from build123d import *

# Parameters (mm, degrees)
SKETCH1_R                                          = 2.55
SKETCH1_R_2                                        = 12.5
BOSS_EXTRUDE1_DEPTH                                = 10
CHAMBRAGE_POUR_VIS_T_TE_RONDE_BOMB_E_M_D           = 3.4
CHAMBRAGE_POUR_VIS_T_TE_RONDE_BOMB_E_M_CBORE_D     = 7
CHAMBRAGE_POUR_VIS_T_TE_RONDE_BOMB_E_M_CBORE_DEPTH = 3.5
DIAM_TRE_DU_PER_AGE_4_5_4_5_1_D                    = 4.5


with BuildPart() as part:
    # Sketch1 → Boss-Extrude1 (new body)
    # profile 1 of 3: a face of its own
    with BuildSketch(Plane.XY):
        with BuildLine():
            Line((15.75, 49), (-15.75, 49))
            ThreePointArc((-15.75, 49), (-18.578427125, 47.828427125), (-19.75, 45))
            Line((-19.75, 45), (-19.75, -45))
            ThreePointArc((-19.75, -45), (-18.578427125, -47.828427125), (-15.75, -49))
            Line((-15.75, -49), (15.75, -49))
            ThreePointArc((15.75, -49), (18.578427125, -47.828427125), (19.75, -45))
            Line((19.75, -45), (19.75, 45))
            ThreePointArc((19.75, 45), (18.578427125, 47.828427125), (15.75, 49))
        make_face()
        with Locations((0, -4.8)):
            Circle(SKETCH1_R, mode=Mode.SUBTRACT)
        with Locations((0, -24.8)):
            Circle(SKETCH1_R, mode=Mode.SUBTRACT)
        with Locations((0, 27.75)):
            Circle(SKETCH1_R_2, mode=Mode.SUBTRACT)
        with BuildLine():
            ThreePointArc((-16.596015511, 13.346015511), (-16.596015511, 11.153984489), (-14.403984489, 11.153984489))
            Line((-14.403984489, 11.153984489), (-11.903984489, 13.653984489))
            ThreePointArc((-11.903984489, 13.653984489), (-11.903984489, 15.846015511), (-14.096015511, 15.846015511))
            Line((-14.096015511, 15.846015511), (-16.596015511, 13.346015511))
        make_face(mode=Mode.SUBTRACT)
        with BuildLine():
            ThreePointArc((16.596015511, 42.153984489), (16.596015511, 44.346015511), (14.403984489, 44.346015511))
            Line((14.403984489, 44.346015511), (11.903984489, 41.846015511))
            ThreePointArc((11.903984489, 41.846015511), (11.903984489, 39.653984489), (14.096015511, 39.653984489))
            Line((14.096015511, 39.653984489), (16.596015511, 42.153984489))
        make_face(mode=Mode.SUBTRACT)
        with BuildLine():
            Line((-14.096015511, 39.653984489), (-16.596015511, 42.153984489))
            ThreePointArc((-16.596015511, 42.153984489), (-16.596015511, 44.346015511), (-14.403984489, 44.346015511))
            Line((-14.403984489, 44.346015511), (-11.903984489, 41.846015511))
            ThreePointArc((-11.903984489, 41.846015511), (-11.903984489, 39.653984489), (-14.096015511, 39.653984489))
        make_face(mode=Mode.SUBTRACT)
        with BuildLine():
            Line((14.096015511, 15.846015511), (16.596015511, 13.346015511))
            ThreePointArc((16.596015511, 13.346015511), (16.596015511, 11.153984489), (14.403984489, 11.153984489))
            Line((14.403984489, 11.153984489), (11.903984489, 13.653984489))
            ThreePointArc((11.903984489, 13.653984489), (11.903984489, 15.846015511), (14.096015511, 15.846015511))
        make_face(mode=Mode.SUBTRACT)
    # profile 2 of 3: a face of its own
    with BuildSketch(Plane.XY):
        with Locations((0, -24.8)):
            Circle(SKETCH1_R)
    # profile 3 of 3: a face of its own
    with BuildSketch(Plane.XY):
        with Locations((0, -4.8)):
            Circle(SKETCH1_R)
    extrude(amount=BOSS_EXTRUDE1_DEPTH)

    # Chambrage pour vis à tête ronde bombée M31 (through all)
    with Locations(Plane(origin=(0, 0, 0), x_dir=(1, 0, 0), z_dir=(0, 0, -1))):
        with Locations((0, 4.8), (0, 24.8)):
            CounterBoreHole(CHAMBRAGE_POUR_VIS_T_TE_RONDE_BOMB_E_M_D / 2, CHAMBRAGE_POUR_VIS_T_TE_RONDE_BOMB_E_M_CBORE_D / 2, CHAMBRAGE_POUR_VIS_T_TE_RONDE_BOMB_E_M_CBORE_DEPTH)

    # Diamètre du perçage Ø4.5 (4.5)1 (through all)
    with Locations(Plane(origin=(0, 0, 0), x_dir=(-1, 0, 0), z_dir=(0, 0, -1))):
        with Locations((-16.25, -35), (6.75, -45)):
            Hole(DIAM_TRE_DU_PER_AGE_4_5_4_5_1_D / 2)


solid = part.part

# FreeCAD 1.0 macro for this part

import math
import FreeCAD as App
import Part
import Sketcher

V = App.Vector
Q = App.Units.Quantity

doc = App.newDocument("Part")
body = doc.addObject("PartDesign::Body", "Body")

sketch1 = body.newObject("Sketcher::SketchObject", "Sketch")
sketch1.AttachmentSupport = (doc.getObject("XY_Plane"), [""])
sketch1.MapMode = "FlatFace"
sketch1.addGeometry([
    Part.LineSegment(V(15.75, 49, 0), V(-15.75, 49, 0)),
    Part.ArcOfCircle(Part.Circle(V(-15.75, 45, 0), V(0, 0, 1), 4), math.radians(90), math.radians(180)),
    Part.LineSegment(V(-19.75, 45, 0), V(-19.75, -45, 0)),
    Part.ArcOfCircle(Part.Circle(V(-15.75, -45, 0), V(0, 0, 1), 4), math.radians(180), math.radians(270)),
    Part.LineSegment(V(-15.75, -49, 0), V(15.75, -49, 0)),
    Part.ArcOfCircle(Part.Circle(V(15.75, -45, 0), V(0, 0, 1), 4), math.radians(-90), math.radians(0)),
    Part.LineSegment(V(19.75, -45, 0), V(19.75, 45, 0)),
    Part.ArcOfCircle(Part.Circle(V(15.75, 45, 0), V(0, 0, 1), 4), math.radians(0), math.radians(90)),
    Part.ArcOfCircle(Part.Circle(V(-15.5, 12.25, 0), V(0, 0, 1), 1.55), math.radians(135), math.radians(315)),
    Part.LineSegment(V(-16.596016, 13.346016, 0), V(-14.096016, 15.846016, 0)),
    Part.ArcOfCircle(Part.Circle(V(-13, 14.75, 0), V(0, 0, 1), 1.55), math.radians(-45), math.radians(135)),
    Part.LineSegment(V(-11.903984, 13.653984, 0), V(-14.403984, 11.153984, 0)),
    Part.ArcOfCircle(Part.Circle(V(-13, 40.75, 0), V(0, 0, 1), 1.55), math.radians(-135), math.radians(45)),
    Part.LineSegment(V(-14.096016, 39.653984, 0), V(-16.596016, 42.153984, 0)),
    Part.ArcOfCircle(Part.Circle(V(-15.5, 43.25, 0), V(0, 0, 1), 1.55), math.radians(45), math.radians(225)),
    Part.LineSegment(V(-14.403984, 44.346016, 0), V(-11.903984, 41.846016, 0)),
    Part.ArcOfCircle(Part.Circle(V(13, 14.75, 0), V(0, 0, 1), 1.55), math.radians(45), math.radians(225)),
    Part.LineSegment(V(14.096016, 15.846016, 0), V(16.596016, 13.346016, 0)),
    Part.ArcOfCircle(Part.Circle(V(15.5, 12.25, 0), V(0, 0, 1), 1.55), math.radians(-135), math.radians(45)),
    Part.LineSegment(V(14.403984, 11.153984, 0), V(11.903984, 13.653984, 0)),
    Part.Circle(V(0, 27.75, 0), V(0, 0, 1), 12.5),
    Part.ArcOfCircle(Part.Circle(V(15.5, 43.25, 0), V(0, 0, 1), 1.55), math.radians(-45), math.radians(135)),
    Part.LineSegment(V(16.596016, 42.153984, 0), V(14.096016, 39.653984, 0)),
    Part.ArcOfCircle(Part.Circle(V(13, 40.75, 0), V(0, 0, 1), 1.55), math.radians(135), math.radians(315)),
    Part.LineSegment(V(11.903984, 41.846016, 0), V(14.403984, 44.346016, 0)),
], False)
sketch1.addConstraint([
    Sketcher.Constraint("Tangent", 0, 2, 1, 1),
    Sketcher.Constraint("Tangent", 1, 2, 2, 1),
    Sketcher.Constraint("Tangent", 2, 2, 3, 1),
    Sketcher.Constraint("Tangent", 3, 2, 4, 1),
    Sketcher.Constraint("Tangent", 4, 2, 5, 1),
    Sketcher.Constraint("Tangent", 5, 2, 6, 1),
    Sketcher.Constraint("Tangent", 6, 2, 7, 1),
    Sketcher.Constraint("Tangent", 7, 2, 0, 1),
    Sketcher.Constraint("Tangent", 8, 1, 9, 1),
    Sketcher.Constraint("Tangent", 9, 2, 10, 2),
    Sketcher.Constraint("Tangent", 10, 1, 11, 1),
    Sketcher.Constraint("Tangent", 11, 2, 8, 2),
    Sketcher.Constraint("Tangent", 12, 1, 13, 1),
    Sketcher.Constraint("Tangent", 13, 2, 14, 2),
    Sketcher.Constraint("Tangent", 14, 1, 15, 1),
    Sketcher.Constraint("Tangent", 15, 2, 12, 2),
    Sketcher.Constraint("Tangent", 16, 1, 17, 1),
    Sketcher.Constraint("Tangent", 17, 2, 18, 2),
    Sketcher.Constraint("Tangent", 18, 1, 19, 1),
    Sketcher.Constraint("Tangent", 19, 2, 16, 2),
    Sketcher.Constraint("Tangent", 21, 1, 22, 1),
    Sketcher.Constraint("Tangent", 22, 2, 23, 2),
    Sketcher.Constraint("Tangent", 23, 1, 24, 1),
    Sketcher.Constraint("Tangent", 24, 2, 21, 2),
    Sketcher.Constraint("Horizontal", 0),
    Sketcher.Constraint("Vertical", 2),
    Sketcher.Constraint("Horizontal", 4),
    Sketcher.Constraint("Vertical", 6),
    Sketcher.Constraint("Equal", 1, 3),
    Sketcher.Constraint("Equal", 3, 5),
    Sketcher.Constraint("Equal", 5, 7),
    Sketcher.Constraint("Equal", 8, 10),
    Sketcher.Constraint("Equal", 10, 12),
    Sketcher.Constraint("Equal", 12, 14),
    Sketcher.Constraint("Equal", 14, 16),
    Sketcher.Constraint("Equal", 16, 18),
    Sketcher.Constraint("Equal", 18, 21),
    Sketcher.Constraint("Equal", 21, 23),
    Sketcher.Constraint("Symmetric", 1, 3, 5, 3, -1, 1),
    Sketcher.Constraint("Symmetric", 10, 3, 16, 3, -2),
    Sketcher.Constraint("Symmetric", 8, 3, 18, 3, -2),
    Sketcher.Constraint("Symmetric", 14, 3, 21, 3, -2),
    Sketcher.Constraint("Symmetric", 12, 3, 23, 3, -2),
    Sketcher.Constraint("PointOnObject", 20, 3, -2),
    Sketcher.Constraint("Perpendicular", 11, 13),
    Sketcher.Constraint("Parallel", 15, 17),
    Sketcher.Constraint("Vertical", 10, 3, 12, 3),
    Sketcher.Constraint("Vertical", 8, 3, 14, 3),
    Sketcher.Constraint("Diameter", 20, Q("25 mm")),
    Sketcher.Constraint("Radius", 1, Q("4 mm")),
    Sketcher.Constraint("DistanceY", 2, 2, 2, 1, Q("90 mm")),
    Sketcher.Constraint("Radius", 8, Q("1.55 mm")),
    Sketcher.Constraint("DistanceX", 0, 2, 0, 1, Q("31.5 mm")),
    Sketcher.Constraint("DistanceX", 10, 3, -1, 1, Q("13 mm")),
    Sketcher.Constraint("DistanceY", 10, 3, 12, 3, Q("26 mm")),
    Sketcher.Constraint("DistanceY", 8, 3, 14, 3, Q("31 mm")),
    Sketcher.Constraint("DistanceY", 10, 3, 20, 3, Q("13 mm")),
    Sketcher.Constraint("DistanceY", -1, 1, 8, 3, Q("12.25 mm")),
])
pad1 = body.newObject("PartDesign::Pad", "Pad")
pad1.Profile = sketch1
pad1.Length = 10

sketch2 = body.newObject("Sketcher::SketchObject", "Sketch001")
sketch2.AttachmentSupport = (doc.getObject("XY_Plane"), [""])
sketch2.MapMode = "FlatFace"
sketch2.addGeometry([
    Part.Circle(V(0, -4.8, 0), V(0, 0, 1), 1.7),
    Part.Circle(V(0, -24.8, 0), V(0, 0, 1), 1.7),
], False)
sketch2.addConstraint([
    Sketcher.Constraint("Equal", 0, 1),
    Sketcher.Constraint("PointOnObject", 0, 3, -2),
    Sketcher.Constraint("PointOnObject", 1, 3, -2),
    Sketcher.Constraint("Diameter", 0, Q("3.4 mm")),
    Sketcher.Constraint("DistanceY", 1, 3, 0, 3, Q("20 mm")),
    Sketcher.Constraint("DistanceY", 0, 3, -1, 1, Q("4.8 mm")),
])
doc.recompute()
hole = body.newObject("PartDesign::Hole", "Hole")
hole.Profile = sketch2
hole.ThreadType = "None"
hole.Diameter = 3.4
hole.DepthType = "ThroughAll"
hole.HoleCutType = "Counterbore"
hole.HoleCutDiameter = 7
hole.HoleCutDepth = 3.5
hole.Reversed = True

sketch3 = body.newObject("Sketcher::SketchObject", "Sketch002")
sketch3.AttachmentSupport = (doc.getObject("XY_Plane"), [""])
sketch3.MapMode = "FlatFace"
sketch3.addGeometry([
    Part.Circle(V(16.25, -35, 0), V(0, 0, 1), 2.25),
    Part.Circle(V(-6.75, -45, 0), V(0, 0, 1), 2.25),
], False)
sketch3.addConstraint([
    Sketcher.Constraint("Equal", 0, 1),
    Sketcher.Constraint("Diameter", 0, Q("4.5 mm")),
    Sketcher.Constraint("DistanceY", 0, 3, -1, 1, Q("35 mm")),
    Sketcher.Constraint("DistanceY", 1, 3, -1, 1, Q("45 mm")),
    Sketcher.Constraint("DistanceX", 1, 3, 0, 3, Q("23 mm")),
    Sketcher.Constraint("DistanceX", -1, 1, 0, 3, Q("16.25 mm")),
])
doc.recompute()
hole2 = body.newObject("PartDesign::Hole", "Hole001")
hole2.Profile = sketch3
hole2.ThreadType = "None"
hole2.Diameter = 4.5
hole2.DepthType = "ThroughAll"
hole2.Reversed = True

doc.recompute()
